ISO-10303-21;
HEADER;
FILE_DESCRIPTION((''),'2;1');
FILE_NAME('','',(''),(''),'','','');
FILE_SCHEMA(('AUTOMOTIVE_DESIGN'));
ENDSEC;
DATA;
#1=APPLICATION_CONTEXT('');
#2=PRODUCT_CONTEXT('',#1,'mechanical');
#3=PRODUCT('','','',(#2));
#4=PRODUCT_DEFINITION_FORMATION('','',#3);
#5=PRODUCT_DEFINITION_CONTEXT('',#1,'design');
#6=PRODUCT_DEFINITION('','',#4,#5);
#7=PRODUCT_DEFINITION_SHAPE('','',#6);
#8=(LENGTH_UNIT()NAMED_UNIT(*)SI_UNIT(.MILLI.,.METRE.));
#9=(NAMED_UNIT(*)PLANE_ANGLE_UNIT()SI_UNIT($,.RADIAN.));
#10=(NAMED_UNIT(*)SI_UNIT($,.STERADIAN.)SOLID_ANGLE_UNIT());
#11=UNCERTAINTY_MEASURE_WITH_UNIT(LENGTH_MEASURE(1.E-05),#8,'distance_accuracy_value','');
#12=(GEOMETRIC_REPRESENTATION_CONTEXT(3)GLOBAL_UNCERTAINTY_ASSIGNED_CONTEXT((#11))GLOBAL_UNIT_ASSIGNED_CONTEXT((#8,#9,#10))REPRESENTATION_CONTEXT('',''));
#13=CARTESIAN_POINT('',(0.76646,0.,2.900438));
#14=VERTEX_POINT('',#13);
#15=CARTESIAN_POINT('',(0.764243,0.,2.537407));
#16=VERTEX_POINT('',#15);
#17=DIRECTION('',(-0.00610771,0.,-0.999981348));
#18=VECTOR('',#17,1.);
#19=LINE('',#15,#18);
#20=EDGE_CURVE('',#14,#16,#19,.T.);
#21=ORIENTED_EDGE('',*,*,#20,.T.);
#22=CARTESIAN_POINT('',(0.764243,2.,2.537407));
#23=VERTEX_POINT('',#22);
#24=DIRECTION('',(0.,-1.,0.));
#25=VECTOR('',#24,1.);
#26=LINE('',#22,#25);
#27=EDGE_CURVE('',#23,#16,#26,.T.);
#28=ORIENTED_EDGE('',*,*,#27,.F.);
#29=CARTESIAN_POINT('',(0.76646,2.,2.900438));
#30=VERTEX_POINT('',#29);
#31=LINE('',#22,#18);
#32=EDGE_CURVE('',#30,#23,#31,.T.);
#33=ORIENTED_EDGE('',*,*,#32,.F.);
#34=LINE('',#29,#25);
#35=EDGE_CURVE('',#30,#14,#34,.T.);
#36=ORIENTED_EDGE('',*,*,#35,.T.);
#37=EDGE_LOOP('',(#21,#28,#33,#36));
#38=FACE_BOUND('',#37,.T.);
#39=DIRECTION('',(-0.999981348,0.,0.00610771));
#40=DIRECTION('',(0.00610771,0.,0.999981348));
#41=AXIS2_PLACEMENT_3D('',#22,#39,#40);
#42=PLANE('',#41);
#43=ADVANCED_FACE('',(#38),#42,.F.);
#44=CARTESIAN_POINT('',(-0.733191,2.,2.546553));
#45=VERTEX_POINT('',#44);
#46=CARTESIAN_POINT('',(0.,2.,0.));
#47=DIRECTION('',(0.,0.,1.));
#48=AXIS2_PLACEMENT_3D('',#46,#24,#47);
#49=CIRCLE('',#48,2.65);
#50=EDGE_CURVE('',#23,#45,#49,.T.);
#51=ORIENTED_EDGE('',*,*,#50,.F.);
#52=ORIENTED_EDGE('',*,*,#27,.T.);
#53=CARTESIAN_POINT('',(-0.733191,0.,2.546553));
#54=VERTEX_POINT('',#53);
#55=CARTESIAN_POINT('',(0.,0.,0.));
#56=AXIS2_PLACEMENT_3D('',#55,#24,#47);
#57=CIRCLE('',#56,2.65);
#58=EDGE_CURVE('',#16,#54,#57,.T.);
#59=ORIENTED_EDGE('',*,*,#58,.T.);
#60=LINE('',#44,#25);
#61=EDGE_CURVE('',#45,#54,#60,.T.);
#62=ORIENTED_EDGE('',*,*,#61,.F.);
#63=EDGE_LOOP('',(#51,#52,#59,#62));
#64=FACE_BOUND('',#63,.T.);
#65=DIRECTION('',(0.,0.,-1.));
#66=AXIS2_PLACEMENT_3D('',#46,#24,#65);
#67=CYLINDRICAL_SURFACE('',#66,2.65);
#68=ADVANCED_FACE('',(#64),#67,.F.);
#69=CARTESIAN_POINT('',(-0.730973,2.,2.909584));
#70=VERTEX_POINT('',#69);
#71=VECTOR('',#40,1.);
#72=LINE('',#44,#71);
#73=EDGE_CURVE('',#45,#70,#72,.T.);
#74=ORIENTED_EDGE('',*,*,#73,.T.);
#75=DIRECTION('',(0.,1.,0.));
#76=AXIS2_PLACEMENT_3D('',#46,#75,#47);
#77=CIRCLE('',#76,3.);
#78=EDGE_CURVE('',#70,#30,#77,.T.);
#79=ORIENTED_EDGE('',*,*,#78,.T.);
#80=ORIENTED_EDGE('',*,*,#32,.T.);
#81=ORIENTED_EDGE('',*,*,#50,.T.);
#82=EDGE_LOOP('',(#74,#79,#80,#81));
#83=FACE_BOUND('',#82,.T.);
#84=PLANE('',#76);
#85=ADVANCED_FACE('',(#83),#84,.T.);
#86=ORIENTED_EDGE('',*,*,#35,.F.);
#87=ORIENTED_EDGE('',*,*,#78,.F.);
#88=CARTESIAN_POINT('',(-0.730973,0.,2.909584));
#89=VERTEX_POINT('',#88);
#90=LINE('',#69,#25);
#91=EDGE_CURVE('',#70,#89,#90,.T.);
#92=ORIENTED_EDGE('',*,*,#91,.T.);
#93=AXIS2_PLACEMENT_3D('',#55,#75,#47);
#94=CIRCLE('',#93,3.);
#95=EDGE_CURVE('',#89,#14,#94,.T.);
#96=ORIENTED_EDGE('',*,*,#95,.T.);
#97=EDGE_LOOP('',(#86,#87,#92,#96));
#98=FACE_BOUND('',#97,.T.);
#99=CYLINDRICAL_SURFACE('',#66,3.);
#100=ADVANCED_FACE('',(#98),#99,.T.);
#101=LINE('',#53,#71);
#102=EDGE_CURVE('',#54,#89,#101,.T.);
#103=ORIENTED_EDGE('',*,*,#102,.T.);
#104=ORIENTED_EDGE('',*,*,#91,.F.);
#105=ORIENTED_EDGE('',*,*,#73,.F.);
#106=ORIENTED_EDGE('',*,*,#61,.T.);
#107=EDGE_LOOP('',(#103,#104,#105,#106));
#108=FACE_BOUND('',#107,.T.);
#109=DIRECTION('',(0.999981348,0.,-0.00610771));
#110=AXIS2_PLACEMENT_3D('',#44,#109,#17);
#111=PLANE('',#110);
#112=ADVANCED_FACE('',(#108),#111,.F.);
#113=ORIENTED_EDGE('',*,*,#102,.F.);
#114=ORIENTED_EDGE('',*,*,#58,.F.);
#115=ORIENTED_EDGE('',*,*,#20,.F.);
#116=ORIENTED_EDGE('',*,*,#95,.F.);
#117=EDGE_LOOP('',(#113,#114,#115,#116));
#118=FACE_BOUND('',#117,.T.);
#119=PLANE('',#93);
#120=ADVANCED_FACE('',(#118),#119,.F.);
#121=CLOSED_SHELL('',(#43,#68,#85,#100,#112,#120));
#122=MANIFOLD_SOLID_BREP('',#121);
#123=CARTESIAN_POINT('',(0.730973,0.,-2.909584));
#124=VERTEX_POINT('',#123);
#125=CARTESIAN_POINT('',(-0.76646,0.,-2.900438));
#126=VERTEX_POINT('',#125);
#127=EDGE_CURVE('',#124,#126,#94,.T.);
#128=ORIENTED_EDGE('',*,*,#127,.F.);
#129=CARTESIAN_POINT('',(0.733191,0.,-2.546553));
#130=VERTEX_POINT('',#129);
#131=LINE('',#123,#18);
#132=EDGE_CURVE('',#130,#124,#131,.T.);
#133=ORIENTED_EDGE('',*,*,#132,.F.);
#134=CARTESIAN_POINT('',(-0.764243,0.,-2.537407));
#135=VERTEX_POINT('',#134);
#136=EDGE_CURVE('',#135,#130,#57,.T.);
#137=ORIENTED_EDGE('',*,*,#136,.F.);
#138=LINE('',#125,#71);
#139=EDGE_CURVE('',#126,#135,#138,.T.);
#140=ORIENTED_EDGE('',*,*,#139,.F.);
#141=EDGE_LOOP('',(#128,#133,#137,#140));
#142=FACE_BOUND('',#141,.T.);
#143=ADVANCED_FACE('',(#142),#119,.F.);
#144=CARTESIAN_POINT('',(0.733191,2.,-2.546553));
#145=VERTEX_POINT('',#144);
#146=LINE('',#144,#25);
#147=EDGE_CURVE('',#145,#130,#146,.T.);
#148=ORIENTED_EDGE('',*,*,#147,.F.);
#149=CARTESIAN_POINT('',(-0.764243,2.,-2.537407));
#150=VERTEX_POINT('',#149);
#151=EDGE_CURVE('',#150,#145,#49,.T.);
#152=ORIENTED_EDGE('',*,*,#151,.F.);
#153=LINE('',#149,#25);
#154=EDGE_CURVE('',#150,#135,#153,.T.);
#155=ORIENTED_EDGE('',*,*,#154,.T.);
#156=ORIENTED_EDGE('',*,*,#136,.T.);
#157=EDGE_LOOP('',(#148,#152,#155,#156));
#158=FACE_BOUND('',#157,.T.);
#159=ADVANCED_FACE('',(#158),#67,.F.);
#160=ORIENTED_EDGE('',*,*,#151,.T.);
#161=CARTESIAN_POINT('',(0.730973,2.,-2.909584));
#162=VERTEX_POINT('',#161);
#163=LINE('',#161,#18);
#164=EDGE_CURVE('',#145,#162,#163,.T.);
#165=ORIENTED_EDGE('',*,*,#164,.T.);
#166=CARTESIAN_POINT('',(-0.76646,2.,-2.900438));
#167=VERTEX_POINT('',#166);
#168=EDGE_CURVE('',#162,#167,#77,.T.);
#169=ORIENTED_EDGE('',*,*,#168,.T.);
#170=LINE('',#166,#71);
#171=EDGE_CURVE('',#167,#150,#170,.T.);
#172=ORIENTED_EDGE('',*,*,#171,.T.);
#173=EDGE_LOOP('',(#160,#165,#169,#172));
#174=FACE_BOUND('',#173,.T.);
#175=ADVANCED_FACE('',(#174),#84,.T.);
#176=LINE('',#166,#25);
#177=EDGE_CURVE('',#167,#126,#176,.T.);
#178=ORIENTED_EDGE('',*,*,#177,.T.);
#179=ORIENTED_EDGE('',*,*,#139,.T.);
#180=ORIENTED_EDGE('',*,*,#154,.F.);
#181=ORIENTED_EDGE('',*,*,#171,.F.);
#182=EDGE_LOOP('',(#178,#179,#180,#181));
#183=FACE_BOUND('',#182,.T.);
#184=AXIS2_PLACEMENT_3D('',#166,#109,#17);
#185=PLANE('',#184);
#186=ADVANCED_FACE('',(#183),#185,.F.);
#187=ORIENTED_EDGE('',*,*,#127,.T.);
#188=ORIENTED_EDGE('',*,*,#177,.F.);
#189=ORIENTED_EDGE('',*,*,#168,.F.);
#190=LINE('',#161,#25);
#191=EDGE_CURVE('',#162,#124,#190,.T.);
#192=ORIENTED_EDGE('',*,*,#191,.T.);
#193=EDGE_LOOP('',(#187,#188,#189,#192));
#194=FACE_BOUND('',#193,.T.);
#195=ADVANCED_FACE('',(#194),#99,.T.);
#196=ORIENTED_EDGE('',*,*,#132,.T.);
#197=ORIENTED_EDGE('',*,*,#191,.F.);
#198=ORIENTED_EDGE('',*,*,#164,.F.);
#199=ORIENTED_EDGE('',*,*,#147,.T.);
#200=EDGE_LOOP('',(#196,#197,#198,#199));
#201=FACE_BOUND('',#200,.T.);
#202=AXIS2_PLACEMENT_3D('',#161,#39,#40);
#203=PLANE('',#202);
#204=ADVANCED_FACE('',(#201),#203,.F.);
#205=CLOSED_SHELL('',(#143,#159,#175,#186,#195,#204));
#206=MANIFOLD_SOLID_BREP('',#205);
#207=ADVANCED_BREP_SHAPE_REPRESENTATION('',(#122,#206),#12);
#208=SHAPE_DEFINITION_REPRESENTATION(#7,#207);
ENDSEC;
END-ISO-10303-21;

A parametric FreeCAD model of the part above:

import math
import FreeCAD as App
import Part
import Sketcher

doc = App.newDocument("Part")
body = doc.addObject("PartDesign::Body", "Body")

sketch1 = body.newObject("Sketcher::SketchObject", "Sketch")
sketch1.AttachmentSupport = (doc.getObject("XZ_Plane"), [""])
sketch1.MapMode = "FlatFace"
sketch1.addGeometry(Part.LineSegment(App.Vector(-0.77, -2.9, 0), App.Vector(-0.76, -2.54, 0)), False)
sketch1.addGeometry(Part.ArcOfCircle(Part.Circle(App.Vector(0, 0, 0), App.Vector(0, 0, 1), 2.65), math.radians(-107), math.radians(-74)), False)
sketch1.addGeometry(Part.LineSegment(App.Vector(0.73, -2.55, 0), App.Vector(0.73, -2.91, 0)), False)
sketch1.addGeometry(Part.ArcOfCircle(Part.Circle(App.Vector(0, 0, 0), App.Vector(0, 0, 1), 3), math.radians(-105), math.radians(-76)), False)
sketch1.addConstraint(Sketcher.Constraint("Coincident", 0, 2, 1, 1))
sketch1.addConstraint(Sketcher.Constraint("Coincident", 1, 2, 2, 1))
sketch1.addConstraint(Sketcher.Constraint("Coincident", 2, 2, 3, 2))
sketch1.addConstraint(Sketcher.Constraint("Coincident", 3, 1, 0, 1))
sketch1.addConstraint(Sketcher.Constraint("Coincident", 1, 3, -1, 1))
sketch1.addConstraint(Sketcher.Constraint("Coincident", 3, 3, -1, 1))
sketch1.addConstraint(Sketcher.Constraint("Parallel", 0, 2))
sketch1.addConstraint(Sketcher.Constraint("Equal", 0, 2))
sketch1.addConstraint(Sketcher.Constraint("Radius", 3, 3.0))
sketch1.addConstraint(Sketcher.Constraint("Radius", 1, 2.65))
sketch1.addConstraint(Sketcher.Constraint("DistanceX", -1, 1, 1, 2, 0.733191))
sketch1.addConstraint(Sketcher.Constraint("DistanceX", 3, 1, -1, 1, 0.76646))
pad1 = body.newObject("PartDesign::Pad", "Pad")
pad1.Profile = sketch1
pad1.Length = 2
pad1.Reversed = True
body2 = doc.addObject("PartDesign::Body", "Body001")

sketch2 = body2.newObject("Sketcher::SketchObject", "Sketch001")
sketch2.AttachmentSupport = (doc.getObject("XZ_Plane001"), [""])
sketch2.MapMode = "FlatFace"
sketch2.addGeometry(Part.LineSegment(App.Vector(-0.73, 2.55, 0), App.Vector(-0.73, 2.91, 0)), False)
sketch2.addGeometry(Part.ArcOfCircle(Part.Circle(App.Vector(0, 0, 0), App.Vector(0, 0, 1), 3), math.radians(75), math.radians(104)), False)
sketch2.addGeometry(Part.LineSegment(App.Vector(0.77, 2.9, 0), App.Vector(0.76, 2.54, 0)), False)
sketch2.addGeometry(Part.ArcOfCircle(Part.Circle(App.Vector(0, 0, 0), App.Vector(0, 0, 1), 2.65), math.radians(73), math.radians(106)), False)
sketch2.addConstraint(Sketcher.Constraint("Coincident", 0, 2, 1, 2))
sketch2.addConstraint(Sketcher.Constraint("Coincident", 1, 1, 2, 1))
sketch2.addConstraint(Sketcher.Constraint("Coincident", 2, 2, 3, 1))
sketch2.addConstraint(Sketcher.Constraint("Coincident", 3, 2, 0, 1))
sketch2.addConstraint(Sketcher.Constraint("Coincident", 1, 3, -1, 1))
sketch2.addConstraint(Sketcher.Constraint("Coincident", 3, 3, -1, 1))
sketch2.addConstraint(Sketcher.Constraint("Parallel", 0, 2))
sketch2.addConstraint(Sketcher.Constraint("Equal", 0, 2))
sketch2.addConstraint(Sketcher.Constraint("Radius", 1, 3.0))
sketch2.addConstraint(Sketcher.Constraint("Radius", 3, 2.65))
sketch2.addConstraint(Sketcher.Constraint("DistanceX", -1, 1, 1, 1, 0.76646))
sketch2.addConstraint(Sketcher.Constraint("DistanceX", 3, 2, -1, 1, 0.733191))
pad2 = body2.newObject("PartDesign::Pad", "Pad001")
pad2.Profile = sketch2
pad2.Length = 2
pad2.Reversed = True

doc.recompute()
